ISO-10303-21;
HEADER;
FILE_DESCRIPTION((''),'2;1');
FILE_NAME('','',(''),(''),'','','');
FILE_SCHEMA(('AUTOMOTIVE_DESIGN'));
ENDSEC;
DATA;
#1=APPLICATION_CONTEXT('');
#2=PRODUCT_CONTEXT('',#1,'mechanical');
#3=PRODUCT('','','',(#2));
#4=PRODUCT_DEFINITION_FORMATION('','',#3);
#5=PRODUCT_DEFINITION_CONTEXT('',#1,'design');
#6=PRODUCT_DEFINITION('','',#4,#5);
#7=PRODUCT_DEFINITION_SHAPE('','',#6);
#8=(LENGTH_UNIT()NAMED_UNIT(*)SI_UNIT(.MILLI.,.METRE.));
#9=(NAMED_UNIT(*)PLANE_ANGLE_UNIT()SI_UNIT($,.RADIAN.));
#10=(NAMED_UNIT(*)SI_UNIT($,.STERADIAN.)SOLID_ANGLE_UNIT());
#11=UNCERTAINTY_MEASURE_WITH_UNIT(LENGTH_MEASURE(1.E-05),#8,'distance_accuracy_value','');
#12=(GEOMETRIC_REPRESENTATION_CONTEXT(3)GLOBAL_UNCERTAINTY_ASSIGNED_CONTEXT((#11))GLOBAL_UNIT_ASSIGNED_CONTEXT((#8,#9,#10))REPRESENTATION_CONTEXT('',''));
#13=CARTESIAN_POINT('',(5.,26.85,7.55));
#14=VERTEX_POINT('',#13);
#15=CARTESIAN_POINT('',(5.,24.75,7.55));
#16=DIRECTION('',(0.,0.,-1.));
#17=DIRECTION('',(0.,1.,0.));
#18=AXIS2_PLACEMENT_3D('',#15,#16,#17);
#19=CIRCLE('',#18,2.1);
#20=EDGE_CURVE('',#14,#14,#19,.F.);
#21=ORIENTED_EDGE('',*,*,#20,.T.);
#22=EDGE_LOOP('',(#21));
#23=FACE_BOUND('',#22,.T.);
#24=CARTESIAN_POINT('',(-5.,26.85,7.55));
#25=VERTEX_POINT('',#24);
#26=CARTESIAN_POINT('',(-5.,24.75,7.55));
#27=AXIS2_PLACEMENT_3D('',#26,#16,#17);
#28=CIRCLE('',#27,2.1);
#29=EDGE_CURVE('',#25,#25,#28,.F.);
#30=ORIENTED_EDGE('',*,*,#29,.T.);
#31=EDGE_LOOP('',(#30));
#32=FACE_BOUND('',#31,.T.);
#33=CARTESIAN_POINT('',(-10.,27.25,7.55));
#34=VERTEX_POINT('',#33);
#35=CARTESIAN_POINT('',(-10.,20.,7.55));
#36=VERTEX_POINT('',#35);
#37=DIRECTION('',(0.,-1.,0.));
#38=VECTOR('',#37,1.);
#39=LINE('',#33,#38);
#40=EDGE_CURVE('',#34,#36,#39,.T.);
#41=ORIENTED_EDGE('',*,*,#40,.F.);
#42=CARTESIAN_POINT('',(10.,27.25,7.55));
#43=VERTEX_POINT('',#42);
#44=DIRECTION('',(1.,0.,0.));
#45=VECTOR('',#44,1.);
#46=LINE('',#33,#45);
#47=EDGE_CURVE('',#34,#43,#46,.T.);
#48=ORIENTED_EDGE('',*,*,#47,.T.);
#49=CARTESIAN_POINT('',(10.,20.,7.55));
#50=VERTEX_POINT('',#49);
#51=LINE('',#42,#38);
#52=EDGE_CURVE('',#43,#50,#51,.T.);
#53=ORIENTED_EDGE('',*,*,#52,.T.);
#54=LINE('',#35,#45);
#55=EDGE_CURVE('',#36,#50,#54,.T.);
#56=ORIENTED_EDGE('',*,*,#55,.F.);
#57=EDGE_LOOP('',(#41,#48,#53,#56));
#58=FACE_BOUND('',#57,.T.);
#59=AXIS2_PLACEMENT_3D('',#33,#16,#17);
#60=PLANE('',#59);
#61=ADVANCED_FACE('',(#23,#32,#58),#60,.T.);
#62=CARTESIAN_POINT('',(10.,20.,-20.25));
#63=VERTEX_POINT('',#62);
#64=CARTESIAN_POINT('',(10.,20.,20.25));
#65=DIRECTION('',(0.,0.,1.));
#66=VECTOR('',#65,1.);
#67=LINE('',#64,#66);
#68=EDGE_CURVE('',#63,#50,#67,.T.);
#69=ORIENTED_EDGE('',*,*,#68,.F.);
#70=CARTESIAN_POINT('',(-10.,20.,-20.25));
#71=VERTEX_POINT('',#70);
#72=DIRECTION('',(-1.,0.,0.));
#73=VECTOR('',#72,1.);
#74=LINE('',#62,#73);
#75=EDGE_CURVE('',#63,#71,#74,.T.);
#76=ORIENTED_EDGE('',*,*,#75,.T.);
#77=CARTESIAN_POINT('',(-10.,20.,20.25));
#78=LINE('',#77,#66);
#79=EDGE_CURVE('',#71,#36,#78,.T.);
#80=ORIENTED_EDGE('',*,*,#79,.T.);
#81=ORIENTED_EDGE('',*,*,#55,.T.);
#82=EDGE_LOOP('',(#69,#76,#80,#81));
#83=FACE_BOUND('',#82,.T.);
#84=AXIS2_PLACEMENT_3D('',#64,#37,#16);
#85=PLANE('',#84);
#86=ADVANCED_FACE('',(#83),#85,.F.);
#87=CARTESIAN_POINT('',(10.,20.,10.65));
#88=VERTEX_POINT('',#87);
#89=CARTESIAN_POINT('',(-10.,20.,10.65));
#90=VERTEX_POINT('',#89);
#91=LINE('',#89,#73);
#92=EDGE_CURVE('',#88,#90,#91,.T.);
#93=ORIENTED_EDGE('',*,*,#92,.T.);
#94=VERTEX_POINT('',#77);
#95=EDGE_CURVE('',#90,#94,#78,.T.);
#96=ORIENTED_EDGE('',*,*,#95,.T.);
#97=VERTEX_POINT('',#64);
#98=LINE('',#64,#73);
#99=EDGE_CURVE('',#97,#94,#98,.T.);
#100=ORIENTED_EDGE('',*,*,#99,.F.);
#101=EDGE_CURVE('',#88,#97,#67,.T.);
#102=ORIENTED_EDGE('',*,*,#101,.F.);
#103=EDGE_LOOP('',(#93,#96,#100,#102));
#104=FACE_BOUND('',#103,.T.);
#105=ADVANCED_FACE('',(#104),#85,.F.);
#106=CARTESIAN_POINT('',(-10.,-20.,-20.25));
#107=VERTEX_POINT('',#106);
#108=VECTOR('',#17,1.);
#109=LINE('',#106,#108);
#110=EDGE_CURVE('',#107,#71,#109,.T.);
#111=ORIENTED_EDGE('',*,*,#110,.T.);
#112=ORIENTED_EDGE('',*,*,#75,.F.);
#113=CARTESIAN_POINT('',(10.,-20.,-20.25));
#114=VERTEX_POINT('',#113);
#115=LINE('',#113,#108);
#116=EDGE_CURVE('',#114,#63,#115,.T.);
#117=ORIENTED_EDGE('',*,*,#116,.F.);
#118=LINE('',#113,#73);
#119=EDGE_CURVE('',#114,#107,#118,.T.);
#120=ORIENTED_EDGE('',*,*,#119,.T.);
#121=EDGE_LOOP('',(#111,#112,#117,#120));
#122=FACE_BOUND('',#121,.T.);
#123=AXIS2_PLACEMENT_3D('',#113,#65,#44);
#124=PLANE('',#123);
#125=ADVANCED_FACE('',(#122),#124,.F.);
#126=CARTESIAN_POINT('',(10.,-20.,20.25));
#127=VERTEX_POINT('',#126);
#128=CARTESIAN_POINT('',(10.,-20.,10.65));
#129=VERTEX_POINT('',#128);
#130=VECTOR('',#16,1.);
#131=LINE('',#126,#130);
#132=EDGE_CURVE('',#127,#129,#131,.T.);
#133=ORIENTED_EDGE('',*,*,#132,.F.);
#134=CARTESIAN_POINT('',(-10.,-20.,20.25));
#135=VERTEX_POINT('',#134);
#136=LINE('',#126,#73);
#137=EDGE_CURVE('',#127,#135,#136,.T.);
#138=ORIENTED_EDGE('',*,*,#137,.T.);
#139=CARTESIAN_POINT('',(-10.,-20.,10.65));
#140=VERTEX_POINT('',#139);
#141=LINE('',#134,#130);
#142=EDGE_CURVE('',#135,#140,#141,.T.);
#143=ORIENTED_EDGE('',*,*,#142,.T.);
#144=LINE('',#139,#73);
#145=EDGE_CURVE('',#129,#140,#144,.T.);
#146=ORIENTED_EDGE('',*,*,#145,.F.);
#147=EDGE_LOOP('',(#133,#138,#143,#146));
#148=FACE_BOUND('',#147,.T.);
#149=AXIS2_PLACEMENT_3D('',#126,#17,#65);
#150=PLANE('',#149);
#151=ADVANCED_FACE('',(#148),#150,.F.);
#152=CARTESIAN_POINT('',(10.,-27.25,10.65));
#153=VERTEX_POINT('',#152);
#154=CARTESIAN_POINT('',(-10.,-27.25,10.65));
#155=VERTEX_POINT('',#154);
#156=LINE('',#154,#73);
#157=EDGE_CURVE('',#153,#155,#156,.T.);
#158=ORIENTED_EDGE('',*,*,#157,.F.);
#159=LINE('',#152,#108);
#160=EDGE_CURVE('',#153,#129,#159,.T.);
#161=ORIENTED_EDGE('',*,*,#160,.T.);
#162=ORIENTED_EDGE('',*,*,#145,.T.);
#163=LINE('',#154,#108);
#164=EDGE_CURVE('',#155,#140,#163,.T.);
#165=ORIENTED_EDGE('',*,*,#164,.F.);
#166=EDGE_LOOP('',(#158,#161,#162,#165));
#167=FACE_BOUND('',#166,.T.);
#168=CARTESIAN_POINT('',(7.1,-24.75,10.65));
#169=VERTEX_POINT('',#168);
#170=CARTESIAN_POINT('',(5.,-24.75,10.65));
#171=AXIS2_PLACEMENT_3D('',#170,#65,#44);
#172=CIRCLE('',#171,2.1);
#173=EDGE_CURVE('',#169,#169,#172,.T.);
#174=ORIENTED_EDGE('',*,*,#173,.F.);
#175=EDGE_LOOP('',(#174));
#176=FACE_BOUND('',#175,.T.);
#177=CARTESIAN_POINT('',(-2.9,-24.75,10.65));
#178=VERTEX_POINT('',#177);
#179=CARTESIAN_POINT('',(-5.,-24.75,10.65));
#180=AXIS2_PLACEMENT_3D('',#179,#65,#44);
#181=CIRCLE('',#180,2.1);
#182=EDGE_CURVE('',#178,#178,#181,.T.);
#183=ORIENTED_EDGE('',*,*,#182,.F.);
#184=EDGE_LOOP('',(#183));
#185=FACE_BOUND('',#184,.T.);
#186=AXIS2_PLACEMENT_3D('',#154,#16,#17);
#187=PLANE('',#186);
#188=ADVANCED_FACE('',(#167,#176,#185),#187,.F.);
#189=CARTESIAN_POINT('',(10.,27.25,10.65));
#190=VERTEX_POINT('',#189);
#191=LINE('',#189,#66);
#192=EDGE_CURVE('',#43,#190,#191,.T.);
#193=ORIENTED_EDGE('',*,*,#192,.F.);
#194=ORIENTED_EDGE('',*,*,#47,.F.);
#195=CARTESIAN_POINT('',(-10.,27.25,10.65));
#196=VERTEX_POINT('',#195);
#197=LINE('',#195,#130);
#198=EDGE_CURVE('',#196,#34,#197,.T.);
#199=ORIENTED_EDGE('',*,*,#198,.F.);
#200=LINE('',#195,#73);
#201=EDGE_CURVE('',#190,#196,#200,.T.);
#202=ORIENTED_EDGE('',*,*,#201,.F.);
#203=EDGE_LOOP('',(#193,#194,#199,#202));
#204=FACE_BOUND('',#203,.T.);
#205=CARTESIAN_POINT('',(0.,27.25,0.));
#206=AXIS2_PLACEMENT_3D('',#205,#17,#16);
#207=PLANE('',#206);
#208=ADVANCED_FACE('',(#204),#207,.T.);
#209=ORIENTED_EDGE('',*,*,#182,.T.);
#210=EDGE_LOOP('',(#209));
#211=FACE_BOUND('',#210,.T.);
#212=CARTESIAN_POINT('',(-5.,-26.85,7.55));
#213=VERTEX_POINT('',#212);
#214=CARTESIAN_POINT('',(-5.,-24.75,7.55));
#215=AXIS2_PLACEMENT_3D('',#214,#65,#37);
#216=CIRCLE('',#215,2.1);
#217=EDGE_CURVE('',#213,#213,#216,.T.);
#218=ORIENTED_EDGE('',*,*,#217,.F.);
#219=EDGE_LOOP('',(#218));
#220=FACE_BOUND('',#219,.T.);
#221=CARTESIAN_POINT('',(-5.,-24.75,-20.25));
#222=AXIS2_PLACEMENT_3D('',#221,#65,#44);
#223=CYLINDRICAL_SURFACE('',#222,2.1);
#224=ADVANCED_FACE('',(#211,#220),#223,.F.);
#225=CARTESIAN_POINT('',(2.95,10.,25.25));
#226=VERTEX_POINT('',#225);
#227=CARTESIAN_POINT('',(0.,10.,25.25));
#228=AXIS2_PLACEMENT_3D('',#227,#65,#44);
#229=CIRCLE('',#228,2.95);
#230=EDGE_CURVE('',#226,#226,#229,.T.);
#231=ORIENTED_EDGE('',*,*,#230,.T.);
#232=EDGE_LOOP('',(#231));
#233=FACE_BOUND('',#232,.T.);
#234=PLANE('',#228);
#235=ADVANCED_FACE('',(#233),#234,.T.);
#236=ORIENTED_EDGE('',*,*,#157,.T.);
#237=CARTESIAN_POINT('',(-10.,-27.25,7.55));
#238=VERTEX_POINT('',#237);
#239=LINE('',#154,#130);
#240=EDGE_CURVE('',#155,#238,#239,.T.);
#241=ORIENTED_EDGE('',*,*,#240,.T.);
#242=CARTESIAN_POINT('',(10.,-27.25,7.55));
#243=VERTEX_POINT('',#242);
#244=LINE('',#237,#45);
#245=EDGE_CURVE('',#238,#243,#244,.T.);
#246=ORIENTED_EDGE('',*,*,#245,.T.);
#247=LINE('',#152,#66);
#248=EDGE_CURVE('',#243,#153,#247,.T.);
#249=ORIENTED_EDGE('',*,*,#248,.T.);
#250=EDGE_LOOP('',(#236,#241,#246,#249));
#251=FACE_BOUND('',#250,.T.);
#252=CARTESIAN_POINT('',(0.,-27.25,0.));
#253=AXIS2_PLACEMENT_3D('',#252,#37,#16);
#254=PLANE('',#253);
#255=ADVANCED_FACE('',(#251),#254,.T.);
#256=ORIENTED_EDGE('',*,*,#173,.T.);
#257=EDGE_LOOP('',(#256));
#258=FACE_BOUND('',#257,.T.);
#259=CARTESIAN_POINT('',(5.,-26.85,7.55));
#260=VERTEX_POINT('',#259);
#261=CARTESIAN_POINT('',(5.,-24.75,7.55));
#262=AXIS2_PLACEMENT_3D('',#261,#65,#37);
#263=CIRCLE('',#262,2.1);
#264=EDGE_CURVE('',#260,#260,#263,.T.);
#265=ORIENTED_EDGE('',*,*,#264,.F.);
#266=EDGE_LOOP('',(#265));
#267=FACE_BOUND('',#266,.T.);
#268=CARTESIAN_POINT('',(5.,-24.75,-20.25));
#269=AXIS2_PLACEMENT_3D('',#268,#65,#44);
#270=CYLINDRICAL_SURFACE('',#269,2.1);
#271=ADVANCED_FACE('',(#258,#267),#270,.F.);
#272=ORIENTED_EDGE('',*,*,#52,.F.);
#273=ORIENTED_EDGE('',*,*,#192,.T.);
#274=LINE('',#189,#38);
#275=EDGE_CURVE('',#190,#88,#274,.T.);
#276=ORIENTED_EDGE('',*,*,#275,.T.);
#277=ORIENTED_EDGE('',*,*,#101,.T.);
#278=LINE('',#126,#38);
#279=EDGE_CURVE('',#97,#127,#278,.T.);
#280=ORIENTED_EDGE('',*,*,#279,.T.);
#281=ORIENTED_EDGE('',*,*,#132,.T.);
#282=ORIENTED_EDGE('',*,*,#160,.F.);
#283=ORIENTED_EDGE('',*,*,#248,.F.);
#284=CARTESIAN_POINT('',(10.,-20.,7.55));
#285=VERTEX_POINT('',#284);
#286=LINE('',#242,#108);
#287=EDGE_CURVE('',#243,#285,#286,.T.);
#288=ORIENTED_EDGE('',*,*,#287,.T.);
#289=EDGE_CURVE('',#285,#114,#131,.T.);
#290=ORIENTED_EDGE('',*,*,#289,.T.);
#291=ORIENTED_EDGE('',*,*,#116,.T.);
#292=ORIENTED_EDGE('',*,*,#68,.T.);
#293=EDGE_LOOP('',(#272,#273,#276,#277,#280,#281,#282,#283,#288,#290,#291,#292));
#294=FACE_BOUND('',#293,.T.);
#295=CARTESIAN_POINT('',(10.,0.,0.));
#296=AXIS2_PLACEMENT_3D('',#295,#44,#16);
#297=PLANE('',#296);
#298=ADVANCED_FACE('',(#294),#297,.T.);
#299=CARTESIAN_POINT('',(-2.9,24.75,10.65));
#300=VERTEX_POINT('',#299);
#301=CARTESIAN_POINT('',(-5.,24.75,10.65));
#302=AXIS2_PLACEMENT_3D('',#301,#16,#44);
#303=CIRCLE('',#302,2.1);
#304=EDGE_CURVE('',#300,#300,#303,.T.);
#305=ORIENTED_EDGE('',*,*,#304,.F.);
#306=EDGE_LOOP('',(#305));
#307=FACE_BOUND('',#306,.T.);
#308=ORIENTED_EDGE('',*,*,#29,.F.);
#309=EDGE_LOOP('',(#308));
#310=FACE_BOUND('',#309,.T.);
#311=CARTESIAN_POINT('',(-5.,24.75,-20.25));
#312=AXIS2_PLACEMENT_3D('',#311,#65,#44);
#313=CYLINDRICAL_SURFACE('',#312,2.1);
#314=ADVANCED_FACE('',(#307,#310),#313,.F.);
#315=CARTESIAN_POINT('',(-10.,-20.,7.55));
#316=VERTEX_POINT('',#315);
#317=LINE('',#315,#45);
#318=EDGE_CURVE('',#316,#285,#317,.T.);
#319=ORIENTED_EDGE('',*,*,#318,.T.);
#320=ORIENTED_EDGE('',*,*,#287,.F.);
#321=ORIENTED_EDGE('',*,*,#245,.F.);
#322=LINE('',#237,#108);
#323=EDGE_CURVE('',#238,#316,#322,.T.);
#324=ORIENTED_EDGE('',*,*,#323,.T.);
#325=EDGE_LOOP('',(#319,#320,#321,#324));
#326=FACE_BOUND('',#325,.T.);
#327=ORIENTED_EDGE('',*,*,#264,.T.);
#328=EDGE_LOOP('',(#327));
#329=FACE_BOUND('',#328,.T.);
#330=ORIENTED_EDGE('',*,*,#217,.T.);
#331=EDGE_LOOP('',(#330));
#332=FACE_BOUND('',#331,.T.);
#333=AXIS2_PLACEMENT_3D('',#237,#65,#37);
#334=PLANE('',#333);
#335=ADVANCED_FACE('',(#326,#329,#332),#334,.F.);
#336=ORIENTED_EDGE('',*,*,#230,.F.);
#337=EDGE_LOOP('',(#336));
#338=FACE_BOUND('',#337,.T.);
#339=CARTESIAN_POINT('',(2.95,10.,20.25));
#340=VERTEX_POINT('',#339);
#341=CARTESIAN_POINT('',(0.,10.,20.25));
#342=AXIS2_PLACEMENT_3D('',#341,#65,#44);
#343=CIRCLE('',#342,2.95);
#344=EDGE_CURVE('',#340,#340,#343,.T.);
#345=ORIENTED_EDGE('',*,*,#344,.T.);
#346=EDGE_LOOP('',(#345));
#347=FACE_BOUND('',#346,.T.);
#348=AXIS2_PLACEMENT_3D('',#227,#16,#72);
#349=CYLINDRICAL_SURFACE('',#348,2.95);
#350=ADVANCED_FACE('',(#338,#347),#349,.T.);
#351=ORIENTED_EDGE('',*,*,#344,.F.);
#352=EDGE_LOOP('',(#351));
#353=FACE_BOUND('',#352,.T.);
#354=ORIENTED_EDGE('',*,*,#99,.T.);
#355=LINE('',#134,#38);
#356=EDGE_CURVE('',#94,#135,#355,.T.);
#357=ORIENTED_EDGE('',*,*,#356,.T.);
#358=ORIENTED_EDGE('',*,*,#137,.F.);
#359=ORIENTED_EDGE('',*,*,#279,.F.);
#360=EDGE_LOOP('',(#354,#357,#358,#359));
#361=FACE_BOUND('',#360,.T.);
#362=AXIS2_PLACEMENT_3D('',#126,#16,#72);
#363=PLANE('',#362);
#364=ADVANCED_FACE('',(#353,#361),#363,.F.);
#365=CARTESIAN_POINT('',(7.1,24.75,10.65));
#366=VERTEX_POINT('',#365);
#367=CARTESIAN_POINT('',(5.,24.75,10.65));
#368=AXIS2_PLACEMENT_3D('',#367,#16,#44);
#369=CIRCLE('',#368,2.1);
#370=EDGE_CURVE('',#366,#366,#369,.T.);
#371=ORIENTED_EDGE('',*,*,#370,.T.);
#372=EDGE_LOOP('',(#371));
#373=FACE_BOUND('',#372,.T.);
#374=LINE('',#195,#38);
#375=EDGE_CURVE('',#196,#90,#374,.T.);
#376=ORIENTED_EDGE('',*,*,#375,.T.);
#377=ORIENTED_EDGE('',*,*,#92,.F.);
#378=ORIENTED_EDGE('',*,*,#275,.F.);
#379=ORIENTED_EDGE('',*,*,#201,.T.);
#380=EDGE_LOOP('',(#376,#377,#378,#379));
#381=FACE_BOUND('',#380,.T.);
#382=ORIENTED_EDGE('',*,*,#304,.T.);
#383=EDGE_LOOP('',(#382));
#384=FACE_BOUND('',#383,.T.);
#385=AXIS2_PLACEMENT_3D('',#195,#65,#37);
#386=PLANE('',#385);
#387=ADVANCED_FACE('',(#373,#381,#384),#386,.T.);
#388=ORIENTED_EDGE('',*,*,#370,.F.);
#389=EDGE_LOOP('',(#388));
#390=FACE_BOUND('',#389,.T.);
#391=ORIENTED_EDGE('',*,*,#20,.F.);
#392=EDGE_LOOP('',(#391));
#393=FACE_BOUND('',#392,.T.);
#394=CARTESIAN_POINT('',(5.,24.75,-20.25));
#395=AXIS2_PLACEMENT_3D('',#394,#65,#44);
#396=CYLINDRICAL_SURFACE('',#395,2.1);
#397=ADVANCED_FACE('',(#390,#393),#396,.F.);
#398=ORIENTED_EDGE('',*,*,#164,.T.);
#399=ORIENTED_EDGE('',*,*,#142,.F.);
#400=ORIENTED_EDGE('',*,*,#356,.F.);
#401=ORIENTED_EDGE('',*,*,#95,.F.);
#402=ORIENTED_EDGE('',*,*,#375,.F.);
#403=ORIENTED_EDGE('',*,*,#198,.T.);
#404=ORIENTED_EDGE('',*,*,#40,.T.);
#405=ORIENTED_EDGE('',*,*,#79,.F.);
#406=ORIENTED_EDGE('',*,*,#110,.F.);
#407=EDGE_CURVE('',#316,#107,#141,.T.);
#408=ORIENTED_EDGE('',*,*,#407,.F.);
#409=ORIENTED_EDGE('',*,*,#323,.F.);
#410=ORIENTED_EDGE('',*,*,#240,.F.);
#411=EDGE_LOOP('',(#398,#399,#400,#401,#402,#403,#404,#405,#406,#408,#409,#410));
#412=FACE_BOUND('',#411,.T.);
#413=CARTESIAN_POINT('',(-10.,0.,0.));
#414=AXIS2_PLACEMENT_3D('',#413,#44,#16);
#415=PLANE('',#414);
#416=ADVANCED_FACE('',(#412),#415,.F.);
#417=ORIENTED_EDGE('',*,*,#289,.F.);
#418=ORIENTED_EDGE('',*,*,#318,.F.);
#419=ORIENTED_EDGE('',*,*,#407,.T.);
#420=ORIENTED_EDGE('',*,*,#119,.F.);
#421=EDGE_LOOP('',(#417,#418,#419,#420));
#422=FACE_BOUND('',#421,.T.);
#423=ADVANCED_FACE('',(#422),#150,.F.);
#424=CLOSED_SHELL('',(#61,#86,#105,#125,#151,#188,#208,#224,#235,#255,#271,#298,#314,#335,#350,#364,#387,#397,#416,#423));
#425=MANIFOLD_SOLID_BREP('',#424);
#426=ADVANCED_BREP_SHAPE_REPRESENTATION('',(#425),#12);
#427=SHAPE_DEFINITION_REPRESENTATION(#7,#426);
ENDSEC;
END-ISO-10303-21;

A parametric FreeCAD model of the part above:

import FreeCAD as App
import Part
import Sketcher

V = App.Vector
Q = App.Units.Quantity

doc = App.newDocument("Part")
body = doc.addObject("PartDesign::Body", "Body")

# Sketch on YZ plane
sketch1 = body.newObject("Sketcher::SketchObject", "Sketch")
sketch1.AttachmentSupport = (doc.getObject("YZ_Plane"), [""])
sketch1.MapMode = "FlatFace"
sketch1.addGeometry([
    Part.LineSegment(V(-20, 20, 0), V(-20, -20, 0)),
    Part.LineSegment(V(-20, -20, 0), V(20, -20, 0)),
    Part.LineSegment(V(20, -20, 0), V(20, 20, 0)),
    Part.LineSegment(V(20, 20, 0), V(-20, 20, 0)),
], False)
sketch1.addConstraint([
    Sketcher.Constraint("Coincident", 0, 2, 1, 1),
    Sketcher.Constraint("Coincident", 1, 2, 2, 1),
    Sketcher.Constraint("Coincident", 2, 2, 3, 1),
    Sketcher.Constraint("Coincident", 3, 2, 0, 1),
    Sketcher.Constraint("Vertical", 0),
    Sketcher.Constraint("Horizontal", 1),
    Sketcher.Constraint("Vertical", 2),
    Sketcher.Constraint("Horizontal", 3),
    Sketcher.Constraint("Symmetric", 0, 2, 2, 2, -1, 1),
    Sketcher.Constraint("DistanceX", 1, 1, 1, 2, Q("40 mm")),
    Sketcher.Constraint("DistanceY", 0, 2, 0, 1, Q("40.5 mm")),
])
pad1 = body.newObject("PartDesign::Pad", "Pad")
pad1.Profile = sketch1
pad1.Length = 20
pad1.Midplane = True

# Sketch on XZ plane
sketch2 = body.newObject("Sketcher::SketchObject", "Sketch001")
sketch2.AttachmentSupport = (doc.getObject("XZ_Plane"), [""])
sketch2.MapMode = "FlatFace"
sketch2.AttachmentOffset = App.Placement(V(0, 0, 20), App.Rotation())
sketch2.addGeometry([
    Part.LineSegment(V(-10, 10.7, 0), V(-10, 7.5, 0)),
    Part.LineSegment(V(-10, 7.5, 0), V(10, 7.5, 0)),
    Part.LineSegment(V(10, 7.5, 0), V(10, 10.7, 0)),
    Part.LineSegment(V(10, 10.7, 0), V(-10, 10.7, 0)),
], False)
sketch2.addConstraint([
    Sketcher.Constraint("Coincident", 0, 2, 1, 1),
    Sketcher.Constraint("Coincident", 1, 2, 2, 1),
    Sketcher.Constraint("Coincident", 2, 2, 3, 1),
    Sketcher.Constraint("Coincident", 3, 2, 0, 1),
    Sketcher.Constraint("Vertical", 0),
    Sketcher.Constraint("Horizontal", 1),
    Sketcher.Constraint("Vertical", 2),
    Sketcher.Constraint("Horizontal", 3),
    Sketcher.Constraint("DistanceX", 1, 1, 1, 2, Q("20 mm")),
    Sketcher.Constraint("DistanceY", 0, 2, 0, 1, Q("3.1 mm")),
    Sketcher.Constraint("DistanceX", 0, 2, -1, 1, Q("10 mm")),
    Sketcher.Constraint("DistanceY", -1, 1, 0, 2, Q("7.55 mm")),
])
pad2 = body.newObject("PartDesign::Pad", "Pad001")
pad2.Profile = sketch2
pad2.Length = 7.25

# Sketch on XY plane
sketch3 = body.newObject("Sketcher::SketchObject", "Sketch002")
sketch3.AttachmentSupport = (doc.getObject("XY_Plane"), [""])
sketch3.MapMode = "FlatFace"
sketch3.AttachmentOffset = App.Placement(V(0, 0, 10.65), App.Rotation())
sketch3.addGeometry([
    Part.Circle(V(-5, -24.8, 0), V(0, 0, 1), 2.1),
    Part.Circle(V(5, -24.8, 0), V(0, 0, 1), 2.1),
], False)
sketch3.addConstraint([
    Sketcher.Constraint("Equal", 0, 1),
    Sketcher.Constraint("Symmetric", 0, 3, 1, 3, -2),
    Sketcher.Constraint("Diameter", 0, Q("4.2 mm")),
    Sketcher.Constraint("DistanceX", 0, 3, -1, 1, Q("5 mm")),
    Sketcher.Constraint("DistanceY", 0, 3, -1, 1, Q("24.75 mm")),
])
pocket1 = body.newObject("PartDesign::Pocket", "Pocket")
pocket1.Profile = sketch3
pocket1.Type = "ThroughAll"
doc.recompute()

mirrored = body.newObject("PartDesign::Mirrored", "Mirrored")
mirrored.Originals = [pad2, pocket1]
mirrored.MirrorPlane = (doc.getObject("XZ_Plane"), [""])
body.Tip = mirrored

# Sketch on XY plane
sketch4 = body.newObject("Sketcher::SketchObject", "Sketch003")
sketch4.AttachmentSupport = (doc.getObject("XY_Plane"), [""])
sketch4.MapMode = "FlatFace"
sketch4.AttachmentOffset = App.Placement(V(0, 0, 20.25), App.Rotation())
sketch4.addGeometry(Part.Circle(V(0, 10, 0), V(0, 0, 1), 3), False)
sketch4.addConstraint([
    Sketcher.Constraint("PointOnObject", 0, 3, -2),
    Sketcher.Constraint("Diameter", 0, Q("5.9 mm")),
    Sketcher.Constraint("DistanceY", -1, 1, 0, 3, Q("10 mm")),
])
pad3 = body.newObject("PartDesign::Pad", "Pad002")
pad3.Profile = sketch4
pad3.Length = 5

doc.recompute()
